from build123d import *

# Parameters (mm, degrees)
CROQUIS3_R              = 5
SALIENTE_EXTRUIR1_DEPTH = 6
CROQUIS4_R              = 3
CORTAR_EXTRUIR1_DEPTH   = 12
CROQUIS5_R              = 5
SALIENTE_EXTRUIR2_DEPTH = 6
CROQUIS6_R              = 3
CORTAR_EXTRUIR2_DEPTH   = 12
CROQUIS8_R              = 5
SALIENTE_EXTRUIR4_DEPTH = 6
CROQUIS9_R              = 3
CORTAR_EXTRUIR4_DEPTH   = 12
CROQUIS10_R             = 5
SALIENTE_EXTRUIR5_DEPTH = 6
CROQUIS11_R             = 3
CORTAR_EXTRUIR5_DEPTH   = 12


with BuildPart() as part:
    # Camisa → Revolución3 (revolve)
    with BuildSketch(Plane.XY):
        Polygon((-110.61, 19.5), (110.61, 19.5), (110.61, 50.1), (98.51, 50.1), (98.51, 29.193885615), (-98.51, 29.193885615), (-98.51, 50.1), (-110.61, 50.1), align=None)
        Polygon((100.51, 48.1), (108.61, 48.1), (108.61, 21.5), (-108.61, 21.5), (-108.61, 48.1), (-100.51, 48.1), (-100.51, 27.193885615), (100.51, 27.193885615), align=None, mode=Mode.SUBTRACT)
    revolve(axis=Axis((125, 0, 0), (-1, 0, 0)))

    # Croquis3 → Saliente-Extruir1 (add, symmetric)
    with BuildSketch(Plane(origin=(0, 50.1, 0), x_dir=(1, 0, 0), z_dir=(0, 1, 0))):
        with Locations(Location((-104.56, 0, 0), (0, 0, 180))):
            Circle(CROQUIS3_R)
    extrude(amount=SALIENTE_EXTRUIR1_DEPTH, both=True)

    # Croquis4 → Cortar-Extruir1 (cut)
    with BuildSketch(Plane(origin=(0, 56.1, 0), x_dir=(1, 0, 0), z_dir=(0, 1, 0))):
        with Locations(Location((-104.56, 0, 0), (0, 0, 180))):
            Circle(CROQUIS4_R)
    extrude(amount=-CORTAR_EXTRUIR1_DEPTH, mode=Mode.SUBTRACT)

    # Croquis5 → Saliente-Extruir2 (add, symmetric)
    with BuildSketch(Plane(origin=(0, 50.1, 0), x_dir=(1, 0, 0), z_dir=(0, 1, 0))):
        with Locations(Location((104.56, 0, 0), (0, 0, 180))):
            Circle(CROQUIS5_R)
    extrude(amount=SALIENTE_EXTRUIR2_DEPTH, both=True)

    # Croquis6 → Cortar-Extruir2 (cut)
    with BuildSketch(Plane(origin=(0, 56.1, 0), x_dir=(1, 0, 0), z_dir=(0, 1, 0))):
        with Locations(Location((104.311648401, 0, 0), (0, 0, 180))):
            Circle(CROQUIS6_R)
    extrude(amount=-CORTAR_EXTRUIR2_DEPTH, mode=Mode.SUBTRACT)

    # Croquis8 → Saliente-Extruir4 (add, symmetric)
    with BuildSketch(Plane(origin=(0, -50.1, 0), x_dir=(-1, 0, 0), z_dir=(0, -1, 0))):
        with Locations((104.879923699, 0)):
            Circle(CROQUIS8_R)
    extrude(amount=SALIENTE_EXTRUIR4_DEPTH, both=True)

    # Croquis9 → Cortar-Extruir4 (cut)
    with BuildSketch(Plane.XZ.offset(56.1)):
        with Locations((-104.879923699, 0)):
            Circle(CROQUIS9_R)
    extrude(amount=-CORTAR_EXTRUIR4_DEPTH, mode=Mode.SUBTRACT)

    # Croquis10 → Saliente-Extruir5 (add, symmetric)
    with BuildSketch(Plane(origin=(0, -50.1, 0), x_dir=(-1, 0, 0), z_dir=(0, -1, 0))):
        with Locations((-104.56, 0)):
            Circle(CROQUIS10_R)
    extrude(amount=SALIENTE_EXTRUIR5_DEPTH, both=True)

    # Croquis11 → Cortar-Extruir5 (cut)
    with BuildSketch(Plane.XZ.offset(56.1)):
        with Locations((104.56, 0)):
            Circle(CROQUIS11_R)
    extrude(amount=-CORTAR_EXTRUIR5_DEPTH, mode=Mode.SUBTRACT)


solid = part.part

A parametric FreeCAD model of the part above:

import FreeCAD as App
import Part
import Sketcher

V = App.Vector

doc = App.newDocument("Part")
body = doc.addObject("PartDesign::Body", "Body")

# Sketch on XY plane
sketch1 = body.newObject("Sketcher::SketchObject", "Sketch")
sketch1.AttachmentSupport = (doc.getObject("XY_Plane"), [""])
sketch1.MapMode = "FlatFace"
sketch1.addGeometry(Part.LineSegment(V(-111, 20, 0), V(111, 20, 0)), False)
sketch1.addGeometry(Part.LineSegment(V(111, 20, 0), V(111, 50, 0)), False)
sketch1.addGeometry(Part.LineSegment(V(111, 50, 0), V(99, 50, 0)), False)
sketch1.addGeometry(Part.LineSegment(V(99, 50, 0), V(99, 29, 0)), False)
sketch1.addGeometry(Part.LineSegment(V(99, 29, 0), V(-99, 29, 0)), False)
sketch1.addGeometry(Part.LineSegment(V(-99, 29, 0), V(-99, 50, 0)), False)
sketch1.addGeometry(Part.LineSegment(V(-99, 50, 0), V(-111, 50, 0)), False)
sketch1.addGeometry(Part.LineSegment(V(-111, 50, 0), V(-111, 20, 0)), False)
sketch1.addGeometry(Part.LineSegment(V(101, 27, 0), V(101, 48, 0)), False)
sketch1.addGeometry(Part.LineSegment(V(101, 48, 0), V(109, 48, 0)), False)
sketch1.addGeometry(Part.LineSegment(V(109, 48, 0), V(109, 22, 0)), False)
sketch1.addGeometry(Part.LineSegment(V(109, 22, 0), V(-109, 22, 0)), False)
sketch1.addGeometry(Part.LineSegment(V(-109, 22, 0), V(-109, 48, 0)), False)
sketch1.addGeometry(Part.LineSegment(V(-109, 48, 0), V(-101, 48, 0)), False)
sketch1.addGeometry(Part.LineSegment(V(-101, 48, 0), V(-101, 27, 0)), False)
sketch1.addGeometry(Part.LineSegment(V(-101, 27, 0), V(101, 27, 0)), False)
sketch1.addConstraint(Sketcher.Constraint("Coincident", 0, 2, 1, 1))
sketch1.addConstraint(Sketcher.Constraint("Coincident", 1, 2, 2, 1))
sketch1.addConstraint(Sketcher.Constraint("Coincident", 2, 2, 3, 1))
sketch1.addConstraint(Sketcher.Constraint("Coincident", 3, 2, 4, 1))
sketch1.addConstraint(Sketcher.Constraint("Coincident", 4, 2, 5, 1))
sketch1.addConstraint(Sketcher.Constraint("Coincident", 5, 2, 6, 1))
sketch1.addConstraint(Sketcher.Constraint("Coincident", 6, 2, 7, 1))
sketch1.addConstraint(Sketcher.Constraint("Coincident", 7, 2, 0, 1))
sketch1.addConstraint(Sketcher.Constraint("Coincident", 8, 2, 9, 1))
sketch1.addConstraint(Sketcher.Constraint("Coincident", 9, 2, 10, 1))
sketch1.addConstraint(Sketcher.Constraint("Coincident", 10, 2, 11, 1))
sketch1.addConstraint(Sketcher.Constraint("Coincident", 11, 2, 12, 1))
sketch1.addConstraint(Sketcher.Constraint("Coincident", 12, 2, 13, 1))
sketch1.addConstraint(Sketcher.Constraint("Coincident", 13, 2, 14, 1))
sketch1.addConstraint(Sketcher.Constraint("Coincident", 14, 2, 15, 1))
sketch1.addConstraint(Sketcher.Constraint("Coincident", 15, 2, 8, 1))
sketch1.addConstraint(Sketcher.Constraint("Horizontal", 0))
sketch1.addConstraint(Sketcher.Constraint("Vertical", 1))
sketch1.addConstraint(Sketcher.Constraint("Horizontal", 2))
sketch1.addConstraint(Sketcher.Constraint("Vertical", 3))
sketch1.addConstraint(Sketcher.Constraint("Horizontal", 4))
sketch1.addConstraint(Sketcher.Constraint("Vertical", 5))
sketch1.addConstraint(Sketcher.Constraint("Horizontal", 6))
sketch1.addConstraint(Sketcher.Constraint("Vertical", 7))
sketch1.addConstraint(Sketcher.Constraint("Vertical", 8))
sketch1.addConstraint(Sketcher.Constraint("Horizontal", 9))
sketch1.addConstraint(Sketcher.Constraint("Vertical", 10))
sketch1.addConstraint(Sketcher.Constraint("Horizontal", 11))
sketch1.addConstraint(Sketcher.Constraint("Vertical", 12))
sketch1.addConstraint(Sketcher.Constraint("Horizontal", 13))
sketch1.addConstraint(Sketcher.Constraint("Vertical", 14))
sketch1.addConstraint(Sketcher.Constraint("Horizontal", 15))
sketch1.addConstraint(Sketcher.Constraint("Symmetric", 2, 2, 5, 2, -2))
sketch1.addConstraint(Sketcher.Constraint("Symmetric", 9, 2, 12, 2, -2))
sketch1.addConstraint(Sketcher.Constraint("Equal", 2, 6))
sketch1.addConstraint(Sketcher.Constraint("Equal", 9, 13))
sketch1.addConstraint(Sketcher.Constraint("Equal", 5, 8))
sketch1.addConstraint(Sketcher.Constraint("DistanceX", 2, 2, 2, 1, 12.1))
sketch1.addConstraint(Sketcher.Constraint("DistanceX", 9, 1, 9, 2, 8.1))
sketch1.addConstraint(Sketcher.Constraint("DistanceY", 1, 1, 1, 2, 30.6))
sketch1.addConstraint(Sketcher.Constraint("DistanceY", 10, 2, 10, 1, 26.6))
sketch1.addConstraint(Sketcher.Constraint("DistanceX", 2, 2, 8, 2, 2.0))
sketch1.addConstraint(Sketcher.Constraint("DistanceY", 8, 2, 2, 2, 2.0))
sketch1.addConstraint(Sketcher.Constraint("DistanceX", 0, 1, 0, 2, 221.22))
sketch1.addConstraint(Sketcher.Constraint("DistanceY", -1, 1, 0, 2, 19.5))
sketch1.addConstraint(Sketcher.Constraint("DistanceY", 3, 2, 3, 1, 20.906114))
revolution = body.newObject("PartDesign::Revolution", "Revolution")
revolution.Profile = sketch1
revolution.ReferenceAxis = (sketch1, ["H_Axis"])
revolution.Angle = 360

# Sketch on XZ plane
sketch2 = body.newObject("Sketcher::SketchObject", "Sketch001")
sketch2.AttachmentSupport = (doc.getObject("XZ_Plane"), [""])
sketch2.MapMode = "FlatFace"
sketch2.AttachmentOffset = App.Placement(V(0, 0, -50.1), App.Rotation())
sketch2.addGeometry(Part.Circle(V(-105, 0, 0), V(0, 0, 1), 5), False)
sketch2.addConstraint(Sketcher.Constraint("PointOnObject", 0, 3, -1))
sketch2.addConstraint(Sketcher.Constraint("Diameter", 0, 10.0))
sketch2.addConstraint(Sketcher.Constraint("DistanceX", 0, 3, -1, 1, 104.56))
pad1 = body.newObject("PartDesign::Pad", "Pad")
pad1.Profile = sketch2
pad1.Length = 12
pad1.Midplane = True

# Sketch on XZ plane
sketch3 = body.newObject("Sketcher::SketchObject", "Sketch002")
sketch3.AttachmentSupport = (doc.getObject("XZ_Plane"), [""])
sketch3.MapMode = "FlatFace"
sketch3.AttachmentOffset = App.Placement(V(0, 0, -56.1), App.Rotation())
sketch3.addGeometry(Part.Circle(V(-104.6, 0, 0), V(0, 0, 1), 3), False)
sketch3.addConstraint(Sketcher.Constraint("PointOnObject", 0, 3, -1))
sketch3.addConstraint(Sketcher.Constraint("Diameter", 0, 6.0))
sketch3.addConstraint(Sketcher.Constraint("DistanceX", 0, 3, -1, 1, 104.56))
pocket1 = body.newObject("PartDesign::Pocket", "Pocket")
pocket1.Profile = sketch3
pocket1.Length = 12
pocket1.Reversed = True

# Sketch on XZ plane
sketch4 = body.newObject("Sketcher::SketchObject", "Sketch003")
sketch4.AttachmentSupport = (doc.getObject("XZ_Plane"), [""])
sketch4.MapMode = "FlatFace"
sketch4.AttachmentOffset = App.Placement(V(0, 0, -50.1), App.Rotation())
sketch4.addGeometry(Part.Circle(V(105, 0, 0), V(0, 0, 1), 5), False)
sketch4.addConstraint(Sketcher.Constraint("PointOnObject", 0, 3, -1))
sketch4.addConstraint(Sketcher.Constraint("Diameter", 0, 10.0))
sketch4.addConstraint(Sketcher.Constraint("DistanceX", -1, 1, 0, 3, 104.56))
pad2 = body.newObject("PartDesign::Pad", "Pad001")
pad2.Profile = sketch4
pad2.Length = 12
pad2.Midplane = True

# Sketch on XZ plane
sketch5 = body.newObject("Sketcher::SketchObject", "Sketch004")
sketch5.AttachmentSupport = (doc.getObject("XZ_Plane"), [""])
sketch5.MapMode = "FlatFace"
sketch5.AttachmentOffset = App.Placement(V(0, 0, -56.1), App.Rotation())
sketch5.addGeometry(Part.Circle(V(104.3, 0, 0), V(0, 0, 1), 3), False)
sketch5.addConstraint(Sketcher.Constraint("PointOnObject", 0, 3, -1))
sketch5.addConstraint(Sketcher.Constraint("Diameter", 0, 6.0))
sketch5.addConstraint(Sketcher.Constraint("DistanceX", -1, 1, 0, 3, 104.311648))
pocket2 = body.newObject("PartDesign::Pocket", "Pocket001")
pocket2.Profile = sketch5
pocket2.Length = 12
pocket2.Reversed = True

# Sketch on XZ plane
sketch6 = body.newObject("Sketcher::SketchObject", "Sketch005")
sketch6.AttachmentSupport = (doc.getObject("XZ_Plane"), [""])
sketch6.MapMode = "FlatFace"
sketch6.AttachmentOffset = App.Placement(V(0, 0, 50.1), App.Rotation())
sketch6.addGeometry(Part.Circle(V(-105, 0, 0), V(0, 0, 1), 5), False)
sketch6.addConstraint(Sketcher.Constraint("PointOnObject", 0, 3, -1))
sketch6.addConstraint(Sketcher.Constraint("Diameter", 0, 10.0))
sketch6.addConstraint(Sketcher.Constraint("DistanceX", 0, 3, -1, 1, 104.879924))
pad3 = body.newObject("PartDesign::Pad", "Pad002")
pad3.Profile = sketch6
pad3.Length = 12
pad3.Midplane = True

# Sketch on XZ plane
sketch7 = body.newObject("Sketcher::SketchObject", "Sketch006")
sketch7.AttachmentSupport = (doc.getObject("XZ_Plane"), [""])
sketch7.MapMode = "FlatFace"
sketch7.AttachmentOffset = App.Placement(V(0, 0, 56.1), App.Rotation())
sketch7.addGeometry(Part.Circle(V(-104.9, 0, 0), V(0, 0, 1), 3), False)
sketch7.addConstraint(Sketcher.Constraint("PointOnObject", 0, 3, -1))
sketch7.addConstraint(Sketcher.Constraint("Diameter", 0, 6.0))
sketch7.addConstraint(Sketcher.Constraint("DistanceX", 0, 3, -1, 1, 104.879924))
pocket3 = body.newObject("PartDesign::Pocket", "Pocket002")
pocket3.Profile = sketch7
pocket3.Length = 12

# Sketch on XZ plane
sketch8 = body.newObject("Sketcher::SketchObject", "Sketch007")
sketch8.AttachmentSupport = (doc.getObject("XZ_Plane"), [""])
sketch8.MapMode = "FlatFace"
sketch8.AttachmentOffset = App.Placement(V(0, 0, 50.1), App.Rotation())
sketch8.addGeometry(Part.Circle(V(105, 0, 0), V(0, 0, 1), 5), False)
sketch8.addConstraint(Sketcher.Constraint("PointOnObject", 0, 3, -1))
sketch8.addConstraint(Sketcher.Constraint("Diameter", 0, 10.0))
sketch8.addConstraint(Sketcher.Constraint("DistanceX", -1, 1, 0, 3, 104.56))
pad4 = body.newObject("PartDesign::Pad", "Pad003")
pad4.Profile = sketch8
pad4.Length = 12
pad4.Midplane = True

# Sketch on XZ plane
sketch9 = body.newObject("Sketcher::SketchObject", "Sketch008")
sketch9.AttachmentSupport = (doc.getObject("XZ_Plane"), [""])
sketch9.MapMode = "FlatFace"
sketch9.AttachmentOffset = App.Placement(V(0, 0, 56.1), App.Rotation())
sketch9.addGeometry(Part.Circle(V(104.6, 0, 0), V(0, 0, 1), 3), False)
sketch9.addConstraint(Sketcher.Constraint("PointOnObject", 0, 3, -1))
sketch9.addConstraint(Sketcher.Constraint("Diameter", 0, 6.0))
sketch9.addConstraint(Sketcher.Constraint("DistanceX", -1, 1, 0, 3, 104.56))
pocket4 = body.newObject("PartDesign::Pocket", "Pocket003")
pocket4.Profile = sketch9
pocket4.Length = 12

doc.recompute()
